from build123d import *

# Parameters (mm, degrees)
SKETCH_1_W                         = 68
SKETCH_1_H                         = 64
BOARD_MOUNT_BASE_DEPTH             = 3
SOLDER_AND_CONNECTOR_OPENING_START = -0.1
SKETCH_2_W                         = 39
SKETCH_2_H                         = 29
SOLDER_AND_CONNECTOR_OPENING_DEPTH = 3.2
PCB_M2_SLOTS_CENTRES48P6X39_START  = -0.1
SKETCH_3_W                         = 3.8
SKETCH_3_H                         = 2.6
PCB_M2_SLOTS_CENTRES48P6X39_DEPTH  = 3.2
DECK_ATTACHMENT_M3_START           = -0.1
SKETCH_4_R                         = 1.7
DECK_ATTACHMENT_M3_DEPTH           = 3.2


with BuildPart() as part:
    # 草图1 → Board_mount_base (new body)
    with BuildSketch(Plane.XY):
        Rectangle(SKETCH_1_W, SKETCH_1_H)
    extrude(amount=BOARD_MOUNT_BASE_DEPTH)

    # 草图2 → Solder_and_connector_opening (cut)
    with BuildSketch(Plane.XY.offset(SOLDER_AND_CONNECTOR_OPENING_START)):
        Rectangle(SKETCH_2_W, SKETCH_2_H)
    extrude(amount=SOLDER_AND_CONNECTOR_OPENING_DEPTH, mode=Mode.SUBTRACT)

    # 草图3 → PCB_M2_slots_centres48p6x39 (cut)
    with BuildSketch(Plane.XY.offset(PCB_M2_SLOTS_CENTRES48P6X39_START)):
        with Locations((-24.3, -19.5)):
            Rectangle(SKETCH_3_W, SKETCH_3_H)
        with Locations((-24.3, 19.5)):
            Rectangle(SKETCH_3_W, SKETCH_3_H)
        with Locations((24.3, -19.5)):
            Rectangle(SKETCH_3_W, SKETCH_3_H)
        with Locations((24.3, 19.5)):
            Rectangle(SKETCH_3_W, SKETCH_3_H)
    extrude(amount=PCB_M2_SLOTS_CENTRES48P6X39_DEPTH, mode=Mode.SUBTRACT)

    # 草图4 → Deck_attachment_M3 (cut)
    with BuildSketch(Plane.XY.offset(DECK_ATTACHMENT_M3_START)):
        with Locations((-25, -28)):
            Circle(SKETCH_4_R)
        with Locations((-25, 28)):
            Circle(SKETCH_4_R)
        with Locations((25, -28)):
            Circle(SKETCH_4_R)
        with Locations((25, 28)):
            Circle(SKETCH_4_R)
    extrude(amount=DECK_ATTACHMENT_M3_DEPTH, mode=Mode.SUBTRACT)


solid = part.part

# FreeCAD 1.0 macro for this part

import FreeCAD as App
import Part
import Sketcher

doc = App.newDocument("Part")
params = doc.addObject("Spreadsheet::Sheet", "Params")
for row, (alias, value) in enumerate([
    ("sketch1_width", "68 mm"),
    ("sketch1_height", "64 mm"),
    ("pad1_length", "3 mm"),
    ("sketch2_width", "39 mm"),
    ("sketch2_height", "29 mm"),
    ("pocket1_length", "3.2 mm"),
    ("sketch3_width", "3.8 mm"),
    ("sketch3_height", "2.6 mm"),
    ("pocket2_length", "3.2 mm"),
    ("sketch4_diameter", "3.4 mm"),
    ("pocket3_length", "3.2 mm"),
], start=1):
    params.set(f"A{row}", alias)
    params.set(f"B{row}", "=" + value)
    params.setAlias(f"B{row}", alias)

body = doc.addObject("PartDesign::Body", "Body")

# Sketch on XY plane
sketch1 = body.newObject("Sketcher::SketchObject", "Sketch")
sketch1.AttachmentSupport = (doc.getObject("XY_Plane"), [""])
sketch1.MapMode = "FlatFace"
sketch1.addGeometry(Part.LineSegment(App.Vector(-34, 32, 0), App.Vector(-34, -32, 0)), False)
sketch1.addGeometry(Part.LineSegment(App.Vector(-34, -32, 0), App.Vector(34, -32, 0)), False)
sketch1.addGeometry(Part.LineSegment(App.Vector(34, -32, 0), App.Vector(34, 32, 0)), False)
sketch1.addGeometry(Part.LineSegment(App.Vector(34, 32, 0), App.Vector(-34, 32, 0)), False)
sketch1.addConstraint(Sketcher.Constraint("Coincident", 0, 2, 1, 1))
sketch1.addConstraint(Sketcher.Constraint("Coincident", 1, 2, 2, 1))
sketch1.addConstraint(Sketcher.Constraint("Coincident", 2, 2, 3, 1))
sketch1.addConstraint(Sketcher.Constraint("Coincident", 3, 2, 0, 1))
sketch1.addConstraint(Sketcher.Constraint("Vertical", 0))
sketch1.addConstraint(Sketcher.Constraint("Horizontal", 1))
sketch1.addConstraint(Sketcher.Constraint("Vertical", 2))
sketch1.addConstraint(Sketcher.Constraint("Horizontal", 3))
sketch1.addConstraint(Sketcher.Constraint("Symmetric", 0, 2, 2, 2, -1, 1))
sketch1.addConstraint(Sketcher.Constraint("DistanceX", 1, 1, 1, 2, 68.0))
sketch1.addConstraint(Sketcher.Constraint("DistanceY", 0, 2, 0, 1, 64.0))
sketch1.setExpression("Constraints[9]", "Params.sketch1_width")
sketch1.setExpression("Constraints[10]", "Params.sketch1_height")
pad1 = body.newObject("PartDesign::Pad", "Pad")
pad1.Profile = sketch1
pad1.setExpression("Length", "Params.pad1_length")

# Sketch on XY plane
sketch2 = body.newObject("Sketcher::SketchObject", "Sketch001")
sketch2.AttachmentSupport = (doc.getObject("XY_Plane"), [""])
sketch2.MapMode = "FlatFace"
sketch2.AttachmentOffset = App.Placement(App.Vector(0, 0, -0.1), App.Rotation())
sketch2.addGeometry(Part.LineSegment(App.Vector(-20, 14, 0), App.Vector(-20, -14, 0)), False)
sketch2.addGeometry(Part.LineSegment(App.Vector(-20, -14, 0), App.Vector(20, -14, 0)), False)
sketch2.addGeometry(Part.LineSegment(App.Vector(20, -14, 0), App.Vector(20, 14, 0)), False)
sketch2.addGeometry(Part.LineSegment(App.Vector(20, 14, 0), App.Vector(-20, 14, 0)), False)
sketch2.addConstraint(Sketcher.Constraint("Coincident", 0, 2, 1, 1))
sketch2.addConstraint(Sketcher.Constraint("Coincident", 1, 2, 2, 1))
sketch2.addConstraint(Sketcher.Constraint("Coincident", 2, 2, 3, 1))
sketch2.addConstraint(Sketcher.Constraint("Coincident", 3, 2, 0, 1))
sketch2.addConstraint(Sketcher.Constraint("Vertical", 0))
sketch2.addConstraint(Sketcher.Constraint("Horizontal", 1))
sketch2.addConstraint(Sketcher.Constraint("Vertical", 2))
sketch2.addConstraint(Sketcher.Constraint("Horizontal", 3))
sketch2.addConstraint(Sketcher.Constraint("Symmetric", 0, 2, 2, 2, -1, 1))
sketch2.addConstraint(Sketcher.Constraint("DistanceX", 1, 1, 1, 2, 39.0))
sketch2.addConstraint(Sketcher.Constraint("DistanceY", 0, 2, 0, 1, 29.0))
sketch2.setExpression("Constraints[9]", "Params.sketch2_width")
sketch2.setExpression("Constraints[10]", "Params.sketch2_height")
pocket1 = body.newObject("PartDesign::Pocket", "Pocket")
pocket1.Profile = sketch2
pocket1.setExpression("Length", "Params.pocket1_length")
pocket1.Reversed = True

# Sketch on XY plane
sketch3 = body.newObject("Sketcher::SketchObject", "Sketch002")
sketch3.AttachmentSupport = (doc.getObject("XY_Plane"), [""])
sketch3.MapMode = "FlatFace"
sketch3.AttachmentOffset = App.Placement(App.Vector(0, 0, -0.1), App.Rotation())
sketch3.addGeometry(Part.LineSegment(App.Vector(-26.2, -18.2, 0), App.Vector(-26.2, -20.8, 0)), False)
sketch3.addGeometry(Part.LineSegment(App.Vector(-26.2, -20.8, 0), App.Vector(-22.4, -20.8, 0)), False)
sketch3.addGeometry(Part.LineSegment(App.Vector(-22.4, -20.8, 0), App.Vector(-22.4, -18.2, 0)), False)
sketch3.addGeometry(Part.LineSegment(App.Vector(-22.4, -18.2, 0), App.Vector(-26.2, -18.2, 0)), False)
sketch3.addGeometry(Part.LineSegment(App.Vector(-26.2, 20.8, 0), App.Vector(-26.2, 18.2, 0)), False)
sketch3.addGeometry(Part.LineSegment(App.Vector(-26.2, 18.2, 0), App.Vector(-22.4, 18.2, 0)), False)
sketch3.addGeometry(Part.LineSegment(App.Vector(-22.4, 18.2, 0), App.Vector(-22.4, 20.8, 0)), False)
sketch3.addGeometry(Part.LineSegment(App.Vector(-22.4, 20.8, 0), App.Vector(-26.2, 20.8, 0)), False)
sketch3.addGeometry(Part.LineSegment(App.Vector(22.4, -18.2, 0), App.Vector(22.4, -20.8, 0)), False)
sketch3.addGeometry(Part.LineSegment(App.Vector(22.4, -20.8, 0), App.Vector(26.2, -20.8, 0)), False)
sketch3.addGeometry(Part.LineSegment(App.Vector(26.2, -20.8, 0), App.Vector(26.2, -18.2, 0)), False)
sketch3.addGeometry(Part.LineSegment(App.Vector(26.2, -18.2, 0), App.Vector(22.4, -18.2, 0)), False)
sketch3.addGeometry(Part.LineSegment(App.Vector(22.4, 20.8, 0), App.Vector(22.4, 18.2, 0)), False)
sketch3.addGeometry(Part.LineSegment(App.Vector(22.4, 18.2, 0), App.Vector(26.2, 18.2, 0)), False)
sketch3.addGeometry(Part.LineSegment(App.Vector(26.2, 18.2, 0), App.Vector(26.2, 20.8, 0)), False)
sketch3.addGeometry(Part.LineSegment(App.Vector(26.2, 20.8, 0), App.Vector(22.4, 20.8, 0)), False)
sketch3.addConstraint(Sketcher.Constraint("Coincident", 0, 2, 1, 1))
sketch3.addConstraint(Sketcher.Constraint("Coincident", 1, 2, 2, 1))
sketch3.addConstraint(Sketcher.Constraint("Coincident", 2, 2, 3, 1))
sketch3.addConstraint(Sketcher.Constraint("Coincident", 3, 2, 0, 1))
sketch3.addConstraint(Sketcher.Constraint("Coincident", 4, 2, 5, 1))
sketch3.addConstraint(Sketcher.Constraint("Coincident", 5, 2, 6, 1))
sketch3.addConstraint(Sketcher.Constraint("Coincident", 6, 2, 7, 1))
sketch3.addConstraint(Sketcher.Constraint("Coincident", 7, 2, 4, 1))
sketch3.addConstraint(Sketcher.Constraint("Coincident", 8, 2, 9, 1))
sketch3.addConstraint(Sketcher.Constraint("Coincident", 9, 2, 10, 1))
sketch3.addConstraint(Sketcher.Constraint("Coincident", 10, 2, 11, 1))
sketch3.addConstraint(Sketcher.Constraint("Coincident", 11, 2, 8, 1))
sketch3.addConstraint(Sketcher.Constraint("Coincident", 12, 2, 13, 1))
sketch3.addConstraint(Sketcher.Constraint("Coincident", 13, 2, 14, 1))
sketch3.addConstraint(Sketcher.Constraint("Coincident", 14, 2, 15, 1))
sketch3.addConstraint(Sketcher.Constraint("Coincident", 15, 2, 12, 1))
sketch3.addConstraint(Sketcher.Constraint("Vertical", 0))
sketch3.addConstraint(Sketcher.Constraint("Horizontal", 1))
sketch3.addConstraint(Sketcher.Constraint("Vertical", 2))
sketch3.addConstraint(Sketcher.Constraint("Horizontal", 3))
sketch3.addConstraint(Sketcher.Constraint("Vertical", 4))
sketch3.addConstraint(Sketcher.Constraint("Horizontal", 5))
sketch3.addConstraint(Sketcher.Constraint("Vertical", 6))
sketch3.addConstraint(Sketcher.Constraint("Horizontal", 7))
sketch3.addConstraint(Sketcher.Constraint("Vertical", 8))
sketch3.addConstraint(Sketcher.Constraint("Horizontal", 9))
sketch3.addConstraint(Sketcher.Constraint("Vertical", 10))
sketch3.addConstraint(Sketcher.Constraint("Horizontal", 11))
sketch3.addConstraint(Sketcher.Constraint("Vertical", 12))
sketch3.addConstraint(Sketcher.Constraint("Horizontal", 13))
sketch3.addConstraint(Sketcher.Constraint("Vertical", 14))
sketch3.addConstraint(Sketcher.Constraint("Horizontal", 15))
sketch3.addConstraint(Sketcher.Constraint("Symmetric", 6, 2, 8, 2, -1, 1))
sketch3.addConstraint(Sketcher.Constraint("Symmetric", 4, 2, 10, 2, -1, 1))
sketch3.addConstraint(Sketcher.Constraint("Symmetric", 2, 2, 12, 2, -1, 1))
sketch3.addConstraint(Sketcher.Constraint("Symmetric", 0, 2, 14, 2, -1, 1))
sketch3.addConstraint(Sketcher.Constraint("Symmetric", 1, 2, 8, 2, -2))
sketch3.addConstraint(Sketcher.Constraint("Symmetric", 3, 2, 10, 2, -2))
sketch3.addConstraint(Sketcher.Constraint("DistanceX", 1, 1, 1, 2, 3.8))
sketch3.addConstraint(Sketcher.Constraint("DistanceY", 0, 2, 0, 1, 2.6))
sketch3.addConstraint(Sketcher.Constraint("DistanceY", 0, 2, 4, 2, 39.0))
sketch3.addConstraint(Sketcher.Constraint("DistanceX", 0, 2, -1, 1, 26.2))
sketch3.setExpression("Constraints[38]", "Params.sketch3_width")
sketch3.setExpression("Constraints[39]", "Params.sketch3_height")
pocket2 = body.newObject("PartDesign::Pocket", "Pocket001")
pocket2.Profile = sketch3
pocket2.setExpression("Length", "Params.pocket2_length")
pocket2.Reversed = True

# Sketch on XY plane
sketch4 = body.newObject("Sketcher::SketchObject", "Sketch003")
sketch4.AttachmentSupport = (doc.getObject("XY_Plane"), [""])
sketch4.MapMode = "FlatFace"
sketch4.AttachmentOffset = App.Placement(App.Vector(0, 0, -0.1), App.Rotation())
sketch4.addGeometry(Part.Circle(App.Vector(-25, -28, 0), App.Vector(0, 0, 1), 1.7), False)
sketch4.addGeometry(Part.Circle(App.Vector(-25, 28, 0), App.Vector(0, 0, 1), 1.7), False)
sketch4.addGeometry(Part.Circle(App.Vector(25, -28, 0), App.Vector(0, 0, 1), 1.7), False)
sketch4.addGeometry(Part.Circle(App.Vector(25, 28, 0), App.Vector(0, 0, 1), 1.7), False)
sketch4.addConstraint(Sketcher.Constraint("Equal", 0, 1))
sketch4.addConstraint(Sketcher.Constraint("Equal", 1, 2))
sketch4.addConstraint(Sketcher.Constraint("Equal", 2, 3))
sketch4.addConstraint(Sketcher.Constraint("Symmetric", 1, 3, 2, 3, -1, 1))
sketch4.addConstraint(Sketcher.Constraint("Symmetric", 0, 3, 3, 3, -1, 1))
sketch4.addConstraint(Sketcher.Constraint("Symmetric", 0, 3, 2, 3, -2))
sketch4.addConstraint(Sketcher.Constraint("Diameter", 0, 3.4))
sketch4.addConstraint(Sketcher.Constraint("DistanceX", 0, 3, -1, 1, 25.0))
sketch4.addConstraint(Sketcher.Constraint("DistanceY", 0, 3, -1, 1, 28.0))
sketch4.setExpression("Constraints[6]", "Params.sketch4_diameter")
pocket3 = body.newObject("PartDesign::Pocket", "Pocket002")
pocket3.Profile = sketch4
pocket3.setExpression("Length", "Params.pocket3_length")
pocket3.Reversed = True

doc.recompute()
